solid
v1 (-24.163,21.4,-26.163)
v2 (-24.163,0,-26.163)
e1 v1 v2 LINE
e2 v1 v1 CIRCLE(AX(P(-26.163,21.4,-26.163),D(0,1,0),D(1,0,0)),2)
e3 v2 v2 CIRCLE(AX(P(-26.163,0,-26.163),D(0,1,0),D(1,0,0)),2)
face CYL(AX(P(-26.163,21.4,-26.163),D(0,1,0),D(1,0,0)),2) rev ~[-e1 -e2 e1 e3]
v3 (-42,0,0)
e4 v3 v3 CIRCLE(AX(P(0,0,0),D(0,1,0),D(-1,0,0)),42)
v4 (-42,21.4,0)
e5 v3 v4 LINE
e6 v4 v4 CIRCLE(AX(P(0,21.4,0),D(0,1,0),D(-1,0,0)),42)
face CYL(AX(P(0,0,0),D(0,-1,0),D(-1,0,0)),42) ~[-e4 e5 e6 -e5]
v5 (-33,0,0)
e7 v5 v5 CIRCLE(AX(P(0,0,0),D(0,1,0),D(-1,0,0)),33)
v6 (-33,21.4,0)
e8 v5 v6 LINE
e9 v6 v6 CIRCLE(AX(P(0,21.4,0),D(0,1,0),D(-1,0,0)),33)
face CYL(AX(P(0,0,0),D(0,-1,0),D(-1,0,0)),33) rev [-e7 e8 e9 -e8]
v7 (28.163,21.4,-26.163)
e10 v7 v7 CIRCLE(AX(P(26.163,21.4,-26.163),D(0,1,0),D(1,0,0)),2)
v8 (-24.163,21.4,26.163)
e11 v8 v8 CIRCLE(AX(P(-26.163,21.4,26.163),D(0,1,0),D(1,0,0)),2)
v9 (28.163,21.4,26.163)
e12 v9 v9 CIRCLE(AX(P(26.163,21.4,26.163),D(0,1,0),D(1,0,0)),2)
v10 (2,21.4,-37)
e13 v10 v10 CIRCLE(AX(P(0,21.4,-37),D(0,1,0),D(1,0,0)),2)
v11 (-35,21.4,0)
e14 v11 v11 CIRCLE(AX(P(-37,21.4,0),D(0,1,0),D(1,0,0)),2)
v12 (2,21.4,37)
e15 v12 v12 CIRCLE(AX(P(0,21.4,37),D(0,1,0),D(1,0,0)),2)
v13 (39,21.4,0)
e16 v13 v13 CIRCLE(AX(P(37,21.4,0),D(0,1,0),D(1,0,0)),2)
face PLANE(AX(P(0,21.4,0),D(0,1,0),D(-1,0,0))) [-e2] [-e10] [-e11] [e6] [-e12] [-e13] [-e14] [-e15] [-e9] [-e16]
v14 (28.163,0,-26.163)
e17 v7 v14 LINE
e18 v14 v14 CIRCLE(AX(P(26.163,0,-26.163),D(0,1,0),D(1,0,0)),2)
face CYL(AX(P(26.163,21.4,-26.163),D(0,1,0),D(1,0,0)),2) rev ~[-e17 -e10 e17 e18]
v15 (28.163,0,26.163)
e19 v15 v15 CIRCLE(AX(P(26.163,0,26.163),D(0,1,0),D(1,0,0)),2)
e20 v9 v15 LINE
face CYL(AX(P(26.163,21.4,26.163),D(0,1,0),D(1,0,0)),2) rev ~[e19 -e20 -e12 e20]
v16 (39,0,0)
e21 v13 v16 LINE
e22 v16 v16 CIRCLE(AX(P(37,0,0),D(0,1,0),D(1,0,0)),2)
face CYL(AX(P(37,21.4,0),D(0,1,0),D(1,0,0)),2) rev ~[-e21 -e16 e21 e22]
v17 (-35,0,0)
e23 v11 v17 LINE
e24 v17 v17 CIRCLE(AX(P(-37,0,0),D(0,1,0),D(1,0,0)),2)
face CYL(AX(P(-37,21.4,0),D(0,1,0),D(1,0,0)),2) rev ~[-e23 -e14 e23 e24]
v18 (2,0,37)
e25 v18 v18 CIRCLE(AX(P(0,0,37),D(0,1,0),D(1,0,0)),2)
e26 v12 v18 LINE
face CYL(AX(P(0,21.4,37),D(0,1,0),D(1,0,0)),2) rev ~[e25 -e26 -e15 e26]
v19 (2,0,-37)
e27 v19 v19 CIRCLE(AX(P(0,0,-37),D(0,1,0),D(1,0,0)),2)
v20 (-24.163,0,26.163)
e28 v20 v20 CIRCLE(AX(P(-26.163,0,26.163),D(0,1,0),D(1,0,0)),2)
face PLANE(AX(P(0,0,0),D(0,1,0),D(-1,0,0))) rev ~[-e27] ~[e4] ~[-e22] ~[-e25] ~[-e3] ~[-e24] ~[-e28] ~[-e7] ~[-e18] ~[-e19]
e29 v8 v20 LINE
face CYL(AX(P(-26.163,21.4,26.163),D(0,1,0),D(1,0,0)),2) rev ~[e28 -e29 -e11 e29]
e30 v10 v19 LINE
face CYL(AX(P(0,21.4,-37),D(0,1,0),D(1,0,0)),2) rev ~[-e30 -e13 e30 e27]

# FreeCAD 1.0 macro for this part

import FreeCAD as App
import Part
import Sketcher

V = App.Vector
Q = App.Units.Quantity

doc = App.newDocument("Part")
body = doc.addObject("PartDesign::Body", "Body")

# Sketch on XZ plane
sketch1 = body.newObject("Sketcher::SketchObject", "Sketch")
sketch1.AttachmentSupport = (doc.getObject("XZ_Plane"), [""])
sketch1.MapMode = "FlatFace"
sketch1.addGeometry([
    Part.Circle(V(0, 0, 0), V(0, 0, 1), 42),
    Part.Circle(V(0, 0, 0), V(0, 0, 1), 33),
], False)
sketch1.addConstraint([
    Sketcher.Constraint("Coincident", 0, 3, -1, 1),
    Sketcher.Constraint("Coincident", 1, 3, -1, 1),
    Sketcher.Constraint("Diameter", 0, Q("84 mm")),
    Sketcher.Constraint("Diameter", 1, Q("66 mm")),
])
pad1 = body.newObject("PartDesign::Pad", "Pad")
pad1.Profile = sketch1
pad1.Length = 21.4
pad1.Reversed = True

# Sketch on XZ plane
sketch2 = body.newObject("Sketcher::SketchObject", "Sketch001")
sketch2.AttachmentSupport = (doc.getObject("XZ_Plane"), [""])
sketch2.MapMode = "FlatFace"
sketch2.AttachmentOffset = App.Placement(V(0, 0, -21.4), App.Rotation())
sketch2.addGeometry([
    Part.Circle(V(0, -37, 0), V(0, 0, 1), 2),  # 0
    Part.Circle(V(-26.2, -26.2, 0), V(0, 0, 1), 2),  # 1
    Part.Circle(V(-37, 0, 0), V(0, 0, 1), 2),  # 2
    Part.Circle(V(-26.2, 26.2, 0), V(0, 0, 1), 2),  # 3
    Part.Circle(V(0, 37, 0), V(0, 0, 1), 2),  # 4
    Part.Circle(V(26.2, 26.2, 0), V(0, 0, 1), 2),  # 5
    Part.Circle(V(37, 0, 0), V(0, 0, 1), 2),  # 6
    Part.Circle(V(26.2, -26.2, 0), V(0, 0, 1), 2),  # 7
], False)
sketch2.addConstraint([
    Sketcher.Constraint("Equal", 0, 1),
    Sketcher.Constraint("Equal", 1, 2),
    Sketcher.Constraint("Equal", 2, 3),
    Sketcher.Constraint("Equal", 3, 4),
    Sketcher.Constraint("Equal", 4, 5),
    Sketcher.Constraint("Equal", 5, 6),
    Sketcher.Constraint("Equal", 6, 7),
    Sketcher.Constraint("Symmetric", 0, 3, 4, 3, -1, 1),
    Sketcher.Constraint("Symmetric", 1, 3, 5, 3, -1, 1),
    Sketcher.Constraint("Symmetric", 2, 3, 6, 3, -1, 1),
    Sketcher.Constraint("Symmetric", 3, 3, 7, 3, -1, 1),
    Sketcher.Constraint("Symmetric", 3, 3, 5, 3, -2),
    Sketcher.Constraint("PointOnObject", 0, 3, -2),
    Sketcher.Constraint("PointOnObject", 2, 3, -1),
    Sketcher.Constraint("Diameter", 0, Q("4 mm")),
    Sketcher.Constraint("DistanceY", 0, 3, -1, 1, Q("37 mm")),
    Sketcher.Constraint("DistanceX", 2, 3, -1, 1, Q("37 mm")),
    Sketcher.Constraint("DistanceX", 1, 3, -1, 1, Q("26.163 mm")),
    Sketcher.Constraint("DistanceY", 1, 3, -1, 1, Q("26.163 mm")),
])
pocket1 = body.newObject("PartDesign::Pocket", "Pocket")
pocket1.Profile = sketch2
pocket1.Length = 21.4
pocket1.Reversed = True

doc.recompute()
